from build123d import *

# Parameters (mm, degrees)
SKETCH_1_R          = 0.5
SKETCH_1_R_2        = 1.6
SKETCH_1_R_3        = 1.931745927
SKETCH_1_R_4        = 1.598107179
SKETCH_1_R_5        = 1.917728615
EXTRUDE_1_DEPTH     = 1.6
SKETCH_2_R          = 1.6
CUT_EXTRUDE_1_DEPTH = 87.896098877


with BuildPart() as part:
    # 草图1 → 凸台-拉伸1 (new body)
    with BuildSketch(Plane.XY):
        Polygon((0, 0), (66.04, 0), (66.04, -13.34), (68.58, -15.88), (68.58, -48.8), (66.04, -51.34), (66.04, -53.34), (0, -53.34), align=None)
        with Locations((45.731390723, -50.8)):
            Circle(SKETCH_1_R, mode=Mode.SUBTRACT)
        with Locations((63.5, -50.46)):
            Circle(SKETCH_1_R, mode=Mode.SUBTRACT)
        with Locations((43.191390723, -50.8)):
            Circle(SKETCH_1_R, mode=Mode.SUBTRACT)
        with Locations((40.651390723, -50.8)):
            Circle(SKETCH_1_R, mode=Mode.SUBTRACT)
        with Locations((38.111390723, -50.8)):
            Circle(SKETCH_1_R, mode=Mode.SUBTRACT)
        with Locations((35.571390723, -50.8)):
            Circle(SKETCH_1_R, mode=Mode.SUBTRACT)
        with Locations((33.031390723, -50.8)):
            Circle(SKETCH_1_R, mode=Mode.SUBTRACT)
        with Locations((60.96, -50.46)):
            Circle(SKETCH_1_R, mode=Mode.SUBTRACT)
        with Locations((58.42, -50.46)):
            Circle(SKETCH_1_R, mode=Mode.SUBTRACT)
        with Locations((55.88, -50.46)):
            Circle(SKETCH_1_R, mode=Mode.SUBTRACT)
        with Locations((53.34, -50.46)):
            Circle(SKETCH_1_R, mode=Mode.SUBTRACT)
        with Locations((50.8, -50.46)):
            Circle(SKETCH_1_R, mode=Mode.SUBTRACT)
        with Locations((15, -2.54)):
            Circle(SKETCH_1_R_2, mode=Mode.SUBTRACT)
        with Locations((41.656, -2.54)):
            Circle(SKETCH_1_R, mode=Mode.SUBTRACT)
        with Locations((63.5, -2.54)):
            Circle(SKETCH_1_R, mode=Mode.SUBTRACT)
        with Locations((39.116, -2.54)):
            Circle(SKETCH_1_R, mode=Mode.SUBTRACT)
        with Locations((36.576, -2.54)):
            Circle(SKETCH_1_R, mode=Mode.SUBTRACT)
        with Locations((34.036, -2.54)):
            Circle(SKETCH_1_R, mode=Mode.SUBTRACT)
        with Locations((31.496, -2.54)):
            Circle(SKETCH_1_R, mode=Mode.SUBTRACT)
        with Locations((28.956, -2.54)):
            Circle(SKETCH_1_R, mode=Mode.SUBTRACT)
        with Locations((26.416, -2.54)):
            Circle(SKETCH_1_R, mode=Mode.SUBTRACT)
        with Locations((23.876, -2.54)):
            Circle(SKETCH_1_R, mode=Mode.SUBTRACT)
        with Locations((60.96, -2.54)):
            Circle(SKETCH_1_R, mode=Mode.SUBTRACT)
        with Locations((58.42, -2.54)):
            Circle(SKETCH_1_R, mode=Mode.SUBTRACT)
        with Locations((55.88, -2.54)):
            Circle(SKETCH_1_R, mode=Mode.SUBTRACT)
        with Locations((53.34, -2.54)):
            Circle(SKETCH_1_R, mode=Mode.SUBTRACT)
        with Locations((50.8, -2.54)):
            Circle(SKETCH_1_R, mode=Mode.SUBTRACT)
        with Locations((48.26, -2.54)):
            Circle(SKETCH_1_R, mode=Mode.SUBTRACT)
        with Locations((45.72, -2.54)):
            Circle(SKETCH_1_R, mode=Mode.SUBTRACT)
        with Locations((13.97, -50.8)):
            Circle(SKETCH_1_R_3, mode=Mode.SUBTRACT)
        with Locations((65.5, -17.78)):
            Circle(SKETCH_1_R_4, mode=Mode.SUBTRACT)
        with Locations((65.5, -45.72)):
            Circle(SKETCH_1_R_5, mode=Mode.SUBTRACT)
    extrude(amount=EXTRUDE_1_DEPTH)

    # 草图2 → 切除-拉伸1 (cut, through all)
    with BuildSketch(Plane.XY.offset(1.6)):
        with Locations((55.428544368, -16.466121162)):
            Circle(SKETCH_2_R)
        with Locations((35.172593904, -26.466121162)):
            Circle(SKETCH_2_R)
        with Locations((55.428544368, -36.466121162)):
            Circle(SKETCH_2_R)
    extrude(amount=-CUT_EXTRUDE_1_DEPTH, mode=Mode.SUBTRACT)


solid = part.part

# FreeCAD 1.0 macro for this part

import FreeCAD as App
import Part
import Sketcher
Q = App.Units.Quantity

doc = App.newDocument("Part")
params = doc.addObject("Spreadsheet::Sheet", "Params")
for row, (alias, value) in enumerate([
    ("sketch1_diameter", "1 mm"),
    ("sketch1_diameter2", "3.2 mm"),
    ("sketch1_height", "2 mm"),
    ("sketch1_width", "66.04 mm"),
    ("sketch1_height2", "53.34 mm"),
    ("pad1_length", "1.6 mm"),
    ("sketch2_diameter", "3.2 mm"),
], start=1):
    params.set(f"A{row}", alias)
    params.set(f"B{row}", "=" + value)
    params.setAlias(f"B{row}", alias)

body = doc.addObject("PartDesign::Body", "Body")

sketch1 = body.newObject("Sketcher::SketchObject", "Sketch")
sketch1.AttachmentSupport = (doc.getObject("XY_Plane"), [""])
sketch1.MapMode = "FlatFace"
sketch1.addGeometry([
    Part.LineSegment(App.Vector(66, 0, 0), App.Vector(0, 0, 0)),
    Part.LineSegment(App.Vector(0, 0, 0), App.Vector(0, -53.3, 0)),
    Part.LineSegment(App.Vector(0, -53.3, 0), App.Vector(66, -53.3, 0)),
    Part.LineSegment(App.Vector(66, -53.3, 0), App.Vector(66, -51.3, 0)),
    Part.LineSegment(App.Vector(66, -51.3, 0), App.Vector(68.6, -48.8, 0)),
    Part.LineSegment(App.Vector(68.6, -48.8, 0), App.Vector(68.6, -15.9, 0)),
    Part.LineSegment(App.Vector(68.6, -15.9, 0), App.Vector(66, -13.3, 0)),
    Part.LineSegment(App.Vector(66, -13.3, 0), App.Vector(66, 0, 0)),
    Part.Circle(App.Vector(63.5, -50.5, 0), App.Vector(0, 0, 1), 0.5),
    Part.Circle(App.Vector(61, -50.5, 0), App.Vector(0, 0, 1), 0.5),
    Part.Circle(App.Vector(58.4, -50.5, 0), App.Vector(0, 0, 1), 0.5),
    Part.Circle(App.Vector(55.9, -50.5, 0), App.Vector(0, 0, 1), 0.5),
    Part.Circle(App.Vector(65.5, -45.7, 0), App.Vector(0, 0, 1), 1.9),
    Part.Circle(App.Vector(53.3, -50.5, 0), App.Vector(0, 0, 1), 0.5),
    Part.Circle(App.Vector(50.8, -50.5, 0), App.Vector(0, 0, 1), 0.5),
    Part.Circle(App.Vector(45.7, -50.8, 0), App.Vector(0, 0, 1), 0.5),
    Part.Circle(App.Vector(43.2, -50.8, 0), App.Vector(0, 0, 1), 0.5),
    Part.Circle(App.Vector(40.7, -50.8, 0), App.Vector(0, 0, 1), 0.5),
    Part.Circle(App.Vector(38.1, -50.8, 0), App.Vector(0, 0, 1), 0.5),
    Part.Circle(App.Vector(35.6, -50.8, 0), App.Vector(0, 0, 1), 0.5),
    Part.Circle(App.Vector(33, -50.8, 0), App.Vector(0, 0, 1), 0.5),
    Part.Circle(App.Vector(14, -50.8, 0), App.Vector(0, 0, 1), 1.9),
    Part.Circle(App.Vector(65.5, -17.8, 0), App.Vector(0, 0, 1), 1.6),
    Part.Circle(App.Vector(63.5, -2.5, 0), App.Vector(0, 0, 1), 0.5),
    Part.Circle(App.Vector(61, -2.5, 0), App.Vector(0, 0, 1), 0.5),
    Part.Circle(App.Vector(58.4, -2.5, 0), App.Vector(0, 0, 1), 0.5),
    Part.Circle(App.Vector(55.9, -2.5, 0), App.Vector(0, 0, 1), 0.5),
    Part.Circle(App.Vector(53.3, -2.5, 0), App.Vector(0, 0, 1), 0.5),
    Part.Circle(App.Vector(50.8, -2.5, 0), App.Vector(0, 0, 1), 0.5),
    Part.Circle(App.Vector(48.3, -2.5, 0), App.Vector(0, 0, 1), 0.5),
    Part.Circle(App.Vector(45.7, -2.5, 0), App.Vector(0, 0, 1), 0.5),
    Part.Circle(App.Vector(41.7, -2.5, 0), App.Vector(0, 0, 1), 0.5),
    Part.Circle(App.Vector(39.1, -2.5, 0), App.Vector(0, 0, 1), 0.5),
    Part.Circle(App.Vector(36.6, -2.5, 0), App.Vector(0, 0, 1), 0.5),
    Part.Circle(App.Vector(34, -2.5, 0), App.Vector(0, 0, 1), 0.5),
    Part.Circle(App.Vector(31.5, -2.5, 0), App.Vector(0, 0, 1), 0.5),
    Part.Circle(App.Vector(29, -2.5, 0), App.Vector(0, 0, 1), 0.5),
    Part.Circle(App.Vector(26.4, -2.5, 0), App.Vector(0, 0, 1), 0.5),
    Part.Circle(App.Vector(23.9, -2.5, 0), App.Vector(0, 0, 1), 0.5),
    Part.Circle(App.Vector(15, -2.5, 0), App.Vector(0, 0, 1), 1.6),
], False)
sketch1.addConstraint([
    Sketcher.Constraint("Coincident", 0, 2, 1, 1),
    Sketcher.Constraint("Coincident", 1, 2, 2, 1),
    Sketcher.Constraint("Coincident", 2, 2, 3, 1),
    Sketcher.Constraint("Coincident", 3, 2, 4, 1),
    Sketcher.Constraint("Coincident", 4, 2, 5, 1),
    Sketcher.Constraint("Coincident", 5, 2, 6, 1),
    Sketcher.Constraint("Coincident", 6, 2, 7, 1),
    Sketcher.Constraint("Coincident", 7, 2, 0, 1),
    Sketcher.Constraint("Horizontal", 0),
    Sketcher.Constraint("Vertical", 1),
    Sketcher.Constraint("Horizontal", 2),
    Sketcher.Constraint("Vertical", 3),
    Sketcher.Constraint("Vertical", 5),
    Sketcher.Constraint("Vertical", 7),
    Sketcher.Constraint("Coincident", 0, 2, -1, 1),
    Sketcher.Constraint("Equal", 8, 9),
    Sketcher.Constraint("Equal", 9, 10),
    Sketcher.Constraint("Equal", 10, 11),
    Sketcher.Constraint("Equal", 11, 13),
    Sketcher.Constraint("Equal", 13, 14),
    Sketcher.Constraint("Equal", 14, 15),
    Sketcher.Constraint("Equal", 15, 16),
    Sketcher.Constraint("Equal", 16, 17),
    Sketcher.Constraint("Equal", 17, 18),
    Sketcher.Constraint("Equal", 18, 19),
    Sketcher.Constraint("Equal", 19, 20),
    Sketcher.Constraint("Equal", 20, 23),
    Sketcher.Constraint("Equal", 23, 24),
    Sketcher.Constraint("Equal", 24, 25),
    Sketcher.Constraint("Equal", 25, 26),
    Sketcher.Constraint("Equal", 26, 27),
    Sketcher.Constraint("Equal", 27, 28),
    Sketcher.Constraint("Equal", 28, 29),
    Sketcher.Constraint("Equal", 29, 30),
    Sketcher.Constraint("Equal", 30, 31),
    Sketcher.Constraint("Equal", 31, 32),
    Sketcher.Constraint("Equal", 32, 33),
    Sketcher.Constraint("Equal", 33, 34),
    Sketcher.Constraint("Equal", 34, 35),
    Sketcher.Constraint("Equal", 35, 36),
    Sketcher.Constraint("Equal", 36, 37),
    Sketcher.Constraint("Equal", 37, 38),
    Sketcher.Constraint("Perpendicular", 4, 6),
    Sketcher.Constraint("Horizontal", 8, 3, 9, 3),
    Sketcher.Constraint("Horizontal", 9, 3, 10, 3),
    Sketcher.Constraint("Horizontal", 10, 3, 11, 3),
    Sketcher.Constraint("Horizontal", 11, 3, 13, 3),
    Sketcher.Constraint("Horizontal", 13, 3, 14, 3),
    Sketcher.Constraint("Horizontal", 15, 3, 16, 3),
    Sketcher.Constraint("Horizontal", 16, 3, 17, 3),
    Sketcher.Constraint("Horizontal", 17, 3, 18, 3),
    Sketcher.Constraint("Horizontal", 18, 3, 19, 3),
    Sketcher.Constraint("Horizontal", 19, 3, 20, 3),
    Sketcher.Constraint("Horizontal", 20, 3, 21, 3),
    Sketcher.Constraint("Horizontal", 23, 3, 24, 3),
    Sketcher.Constraint("Horizontal", 24, 3, 25, 3),
    Sketcher.Constraint("Horizontal", 25, 3, 26, 3),
    Sketcher.Constraint("Horizontal", 26, 3, 27, 3),
    Sketcher.Constraint("Horizontal", 27, 3, 28, 3),
    Sketcher.Constraint("Horizontal", 28, 3, 29, 3),
    Sketcher.Constraint("Horizontal", 29, 3, 30, 3),
    Sketcher.Constraint("Horizontal", 30, 3, 31, 3),
    Sketcher.Constraint("Horizontal", 31, 3, 32, 3),
    Sketcher.Constraint("Horizontal", 32, 3, 33, 3),
    Sketcher.Constraint("Horizontal", 33, 3, 34, 3),
    Sketcher.Constraint("Horizontal", 34, 3, 35, 3),
    Sketcher.Constraint("Horizontal", 35, 3, 36, 3),
    Sketcher.Constraint("Horizontal", 36, 3, 37, 3),
    Sketcher.Constraint("Horizontal", 37, 3, 38, 3),
    Sketcher.Constraint("Horizontal", 38, 3, 39, 3),
    Sketcher.Constraint("Vertical", 12, 3, 22, 3),
    Sketcher.Constraint("Vertical", 8, 3, 23, 3),
    Sketcher.Constraint("Vertical", 9, 3, 24, 3),
    Sketcher.Constraint("Vertical", 10, 3, 25, 3),
    Sketcher.Constraint("Vertical", 11, 3, 26, 3),
    Sketcher.Constraint("Vertical", 13, 3, 27, 3),
    Sketcher.Constraint("Vertical", 14, 3, 28, 3),
    Sketcher.Constraint("Vertical", 3, 2, 6, 2),
    Sketcher.Constraint("Equal", 4, 6),
    Sketcher.Constraint("Diameter", 8, Q("1 mm")),
    Sketcher.Constraint("Diameter", 39, Q("3.2 mm")),
    Sketcher.Constraint("DistanceY", 3, 1, 3, 2, Q("2 mm")),
    Sketcher.Constraint("DistanceX", -1, 1, 39, 3, Q("15 mm")),
    Sketcher.Constraint("DistanceX", 8, 3, 12, 3, Q("2 mm")),
    Sketcher.Constraint("DistanceX", 0, 2, 0, 1, Q("66.04 mm")),
    Sketcher.Constraint("DistanceY", 1, 2, 1, 1, Q("53.34 mm")),
    Sketcher.Constraint("DistanceY", 5, 1, 5, 2, Q("32.92 mm")),
    Sketcher.Constraint("DistanceY", 7, 1, 7, 2, Q("13.34 mm")),
    Sketcher.Constraint("DistanceX", -1, 1, 8, 3, Q("63.5 mm")),
    Sketcher.Constraint("DistanceX", -1, 1, 14, 3, Q("50.8 mm")),
    Sketcher.Constraint("DistanceY", 15, 3, -1, 1, Q("50.8 mm")),
    Sketcher.Constraint("DistanceX", 20, 3, 15, 3, Q("12.7 mm")),
    Sketcher.Constraint("DistanceX", 29, 3, 24, 3, Q("12.7 mm")),
    Sketcher.Constraint("DistanceX", 30, 3, 25, 3, Q("12.7 mm")),
    Sketcher.Constraint("DistanceX", 36, 3, 31, 3, Q("12.7 mm")),
    Sketcher.Constraint("DistanceX", 37, 3, 32, 3, Q("12.7 mm")),
    Sketcher.Constraint("DistanceX", 38, 3, 33, 3, Q("12.7 mm")),
    Sketcher.Constraint("DistanceY", 22, 3, 5, 2, Q("1.9 mm")),
    Sketcher.Constraint("DistanceX", 26, 3, 5, 2, Q("12.7 mm")),
    Sketcher.Constraint("DistanceY", 6, 2, 23, 3, Q("10.8 mm")),
    Sketcher.Constraint("DistanceX", 27, 3, 7, 2, Q("12.7 mm")),
    Sketcher.Constraint("Diameter", 21, Q("3.863492 mm")),
    Sketcher.Constraint("DistanceY", 8, 3, -1, 1, Q("50.46 mm")),
    Sketcher.Constraint("DistanceX", -1, 1, 9, 3, Q("60.96 mm")),
    Sketcher.Constraint("DistanceX", -1, 1, 10, 3, Q("58.42 mm")),
    Sketcher.Constraint("DistanceY", 12, 3, -1, 1, Q("45.72 mm")),
    Sketcher.Constraint("DistanceX", -1, 1, 21, 3, Q("13.97 mm")),
    Sketcher.Constraint("DistanceX", 16, 3, 15, 3, Q("2.54 mm")),
    Sketcher.Constraint("DistanceX", 17, 3, 16, 3, Q("2.54 mm")),
    Sketcher.Constraint("DistanceX", 18, 3, 17, 3, Q("2.54 mm")),
    Sketcher.Constraint("DistanceX", 19, 3, 18, 3, Q("2.54 mm")),
    Sketcher.Constraint("DistanceX", 32, 3, 31, 3, Q("2.54 mm")),
    Sketcher.Constraint("DistanceX", 33, 3, 32, 3, Q("2.54 mm")),
    Sketcher.Constraint("DistanceX", 34, 3, 33, 3, Q("2.54 mm")),
    Sketcher.Constraint("DistanceX", 35, 3, 34, 3, Q("2.54 mm")),
    Sketcher.Constraint("Diameter", 12, Q("3.835457 mm")),
    Sketcher.Constraint("Diameter", 22, Q("3.196214 mm")),
    Sketcher.Constraint("DistanceX", -1, 1, 31, 3, Q("41.656 mm")),
    Sketcher.Constraint("DistanceX", -1, 1, 15, 3, Q("45.731391 mm")),
])
sketch1.setExpression("Constraints[79]", "Params.sketch1_diameter")
sketch1.setExpression("Constraints[80]", "Params.sketch1_diameter2")
sketch1.setExpression("Constraints[81]", "Params.sketch1_height")
sketch1.setExpression("Constraints[84]", "Params.sketch1_width")
sketch1.setExpression("Constraints[85]", "Params.sketch1_height2")
pad1 = body.newObject("PartDesign::Pad", "Pad")
pad1.Profile = sketch1
pad1.setExpression("Length", "Params.pad1_length")

sketch2 = body.newObject("Sketcher::SketchObject", "Sketch001")
sketch2.AttachmentSupport = (doc.getObject("XY_Plane"), [""])
sketch2.MapMode = "FlatFace"
sketch2.AttachmentOffset = App.Placement(App.Vector(0, 0, 1.6), App.Rotation())
sketch2.addGeometry([
    Part.Circle(App.Vector(55.4, -16.5, 0), App.Vector(0, 0, 1), 1.6),
    Part.Circle(App.Vector(35.2, -26.5, 0), App.Vector(0, 0, 1), 1.6),
    Part.Circle(App.Vector(55.4, -36.5, 0), App.Vector(0, 0, 1), 1.6),
], False)
sketch2.addConstraint([
    Sketcher.Constraint("Equal", 0, 1),
    Sketcher.Constraint("Equal", 1, 2),
    Sketcher.Constraint("Vertical", 0, 3, 2, 3),
    Sketcher.Constraint("Diameter", 0, Q("3.2 mm")),
    Sketcher.Constraint("DistanceY", 1, 3, 0, 3, Q("10 mm")),
    Sketcher.Constraint("DistanceY", 2, 3, 0, 3, Q("20 mm")),
    Sketcher.Constraint("DistanceY", 0, 3, -1, 1, Q("16.466121 mm")),
    Sketcher.Constraint("DistanceX", 1, 3, 0, 3, Q("20.25595 mm")),
    Sketcher.Constraint("DistanceX", -1, 1, 0, 3, Q("55.428544 mm")),
])
sketch2.setExpression("Constraints[3]", "Params.sketch2_diameter")
pocket1 = body.newObject("PartDesign::Pocket", "Pocket")
pocket1.Profile = sketch2
pocket1.Type = "ThroughAll"

doc.recompute()
